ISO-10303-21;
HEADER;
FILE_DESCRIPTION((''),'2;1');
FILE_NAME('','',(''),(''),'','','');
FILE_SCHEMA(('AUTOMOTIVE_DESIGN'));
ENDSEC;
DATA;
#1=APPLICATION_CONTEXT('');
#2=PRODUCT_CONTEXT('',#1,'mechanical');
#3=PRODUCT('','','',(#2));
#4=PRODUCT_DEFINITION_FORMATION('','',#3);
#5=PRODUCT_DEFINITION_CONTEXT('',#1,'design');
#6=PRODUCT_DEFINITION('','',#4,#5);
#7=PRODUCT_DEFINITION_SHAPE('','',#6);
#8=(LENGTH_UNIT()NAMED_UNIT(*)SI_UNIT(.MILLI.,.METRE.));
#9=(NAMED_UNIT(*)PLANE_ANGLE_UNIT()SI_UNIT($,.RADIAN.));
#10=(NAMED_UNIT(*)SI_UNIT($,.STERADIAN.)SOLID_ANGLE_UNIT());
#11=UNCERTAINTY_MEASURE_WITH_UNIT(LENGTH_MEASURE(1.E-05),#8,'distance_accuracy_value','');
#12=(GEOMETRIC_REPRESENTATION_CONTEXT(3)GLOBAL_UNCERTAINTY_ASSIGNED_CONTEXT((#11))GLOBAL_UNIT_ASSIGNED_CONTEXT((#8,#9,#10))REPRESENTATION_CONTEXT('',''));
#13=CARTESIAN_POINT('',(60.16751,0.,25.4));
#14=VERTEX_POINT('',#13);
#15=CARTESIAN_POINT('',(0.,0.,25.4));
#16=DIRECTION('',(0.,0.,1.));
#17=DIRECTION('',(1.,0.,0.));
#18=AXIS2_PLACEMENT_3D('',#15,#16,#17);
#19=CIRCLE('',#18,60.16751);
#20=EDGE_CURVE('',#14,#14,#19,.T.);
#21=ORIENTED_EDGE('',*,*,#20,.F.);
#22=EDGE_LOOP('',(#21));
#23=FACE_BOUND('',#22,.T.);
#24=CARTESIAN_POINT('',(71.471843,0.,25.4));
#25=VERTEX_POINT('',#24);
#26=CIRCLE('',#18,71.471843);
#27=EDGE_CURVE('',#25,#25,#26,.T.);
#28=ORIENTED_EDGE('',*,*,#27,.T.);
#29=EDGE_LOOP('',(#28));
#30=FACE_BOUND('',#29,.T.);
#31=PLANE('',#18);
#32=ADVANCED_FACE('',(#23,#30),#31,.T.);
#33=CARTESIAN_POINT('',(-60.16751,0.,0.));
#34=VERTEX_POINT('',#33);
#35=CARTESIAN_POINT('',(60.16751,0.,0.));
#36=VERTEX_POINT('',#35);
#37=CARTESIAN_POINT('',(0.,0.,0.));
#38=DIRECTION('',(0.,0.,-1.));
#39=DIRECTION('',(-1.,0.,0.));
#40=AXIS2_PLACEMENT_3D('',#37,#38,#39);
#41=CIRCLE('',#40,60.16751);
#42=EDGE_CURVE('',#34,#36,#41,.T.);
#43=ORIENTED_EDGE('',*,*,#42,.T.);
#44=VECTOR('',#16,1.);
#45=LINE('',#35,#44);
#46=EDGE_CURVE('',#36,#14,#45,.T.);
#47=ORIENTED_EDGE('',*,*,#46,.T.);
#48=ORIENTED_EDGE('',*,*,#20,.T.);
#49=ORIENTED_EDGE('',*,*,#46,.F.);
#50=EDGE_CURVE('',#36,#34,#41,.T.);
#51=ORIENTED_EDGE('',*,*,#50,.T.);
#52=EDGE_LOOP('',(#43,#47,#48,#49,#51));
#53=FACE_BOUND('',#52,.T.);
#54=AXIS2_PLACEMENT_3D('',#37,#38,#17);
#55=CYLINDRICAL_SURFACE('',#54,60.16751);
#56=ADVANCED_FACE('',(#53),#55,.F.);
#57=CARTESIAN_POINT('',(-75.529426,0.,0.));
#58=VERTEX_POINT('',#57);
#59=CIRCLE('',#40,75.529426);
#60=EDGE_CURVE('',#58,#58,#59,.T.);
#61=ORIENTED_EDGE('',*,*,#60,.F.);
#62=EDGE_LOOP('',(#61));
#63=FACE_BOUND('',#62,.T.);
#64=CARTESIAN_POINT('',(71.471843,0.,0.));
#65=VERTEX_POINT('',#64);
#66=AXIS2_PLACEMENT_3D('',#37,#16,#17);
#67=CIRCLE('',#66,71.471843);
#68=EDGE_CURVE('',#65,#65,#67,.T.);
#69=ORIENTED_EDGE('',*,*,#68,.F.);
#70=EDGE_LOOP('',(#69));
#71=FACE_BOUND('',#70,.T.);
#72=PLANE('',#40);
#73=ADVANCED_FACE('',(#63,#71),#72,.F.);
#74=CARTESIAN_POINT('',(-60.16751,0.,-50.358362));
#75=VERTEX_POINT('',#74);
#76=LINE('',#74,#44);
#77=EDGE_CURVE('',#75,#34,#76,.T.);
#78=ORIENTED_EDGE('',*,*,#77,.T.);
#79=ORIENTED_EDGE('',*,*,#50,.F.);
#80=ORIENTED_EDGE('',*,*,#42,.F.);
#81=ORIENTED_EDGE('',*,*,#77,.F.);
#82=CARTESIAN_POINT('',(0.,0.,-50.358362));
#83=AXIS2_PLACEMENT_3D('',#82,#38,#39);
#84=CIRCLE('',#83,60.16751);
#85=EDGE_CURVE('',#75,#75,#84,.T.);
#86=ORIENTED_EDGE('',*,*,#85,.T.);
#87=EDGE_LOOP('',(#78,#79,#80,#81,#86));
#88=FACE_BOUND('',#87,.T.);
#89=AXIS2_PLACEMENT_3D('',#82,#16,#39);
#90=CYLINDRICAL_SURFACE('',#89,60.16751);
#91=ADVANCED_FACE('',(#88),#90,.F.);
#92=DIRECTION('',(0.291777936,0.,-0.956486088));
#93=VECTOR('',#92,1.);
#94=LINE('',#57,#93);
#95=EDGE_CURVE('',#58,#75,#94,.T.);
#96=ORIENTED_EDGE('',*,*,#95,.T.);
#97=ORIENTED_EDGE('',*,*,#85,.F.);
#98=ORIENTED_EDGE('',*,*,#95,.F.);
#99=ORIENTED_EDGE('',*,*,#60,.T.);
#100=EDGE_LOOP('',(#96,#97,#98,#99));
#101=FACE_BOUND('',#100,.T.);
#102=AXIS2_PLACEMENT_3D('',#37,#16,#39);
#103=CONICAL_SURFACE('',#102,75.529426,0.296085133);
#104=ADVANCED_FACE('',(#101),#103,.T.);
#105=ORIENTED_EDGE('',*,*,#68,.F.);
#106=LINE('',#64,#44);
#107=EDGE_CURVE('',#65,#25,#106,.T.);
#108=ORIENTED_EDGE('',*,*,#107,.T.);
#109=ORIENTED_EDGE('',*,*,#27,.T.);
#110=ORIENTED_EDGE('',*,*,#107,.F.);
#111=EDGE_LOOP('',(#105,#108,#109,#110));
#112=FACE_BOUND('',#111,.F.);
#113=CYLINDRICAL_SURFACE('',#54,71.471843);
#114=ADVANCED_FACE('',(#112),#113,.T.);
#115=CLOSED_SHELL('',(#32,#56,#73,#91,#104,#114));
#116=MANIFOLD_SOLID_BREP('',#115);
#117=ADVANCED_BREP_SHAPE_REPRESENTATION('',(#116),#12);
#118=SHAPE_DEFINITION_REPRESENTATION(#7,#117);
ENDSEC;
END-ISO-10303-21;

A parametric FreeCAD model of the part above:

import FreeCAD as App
import Part
import Sketcher

V = App.Vector
Q = App.Units.Quantity


def add_polygon(sketch, points):
    """Adds a closed chain of lines whose ends are joined by coincident constraints."""
    first, n = sketch.GeometryCount, len(points)
    for a, b in zip(points, points[1:] + points[:1]):
        sketch.addGeometry(Part.LineSegment(App.Vector(*a, 0), App.Vector(*b, 0)), False)
    for i in range(n):
        sketch.addConstraint(Sketcher.Constraint("Coincident", first + i, 2, first + (i + 1) % n, 1))

doc = App.newDocument("Part")
body = doc.addObject("PartDesign::Body", "Body")

# Sketch on XZ plane
sketch1 = body.newObject("Sketcher::SketchObject", "Sketch")
sketch1.AttachmentSupport = (doc.getObject("XZ_Plane"), [""])
sketch1.MapMode = "FlatFace"
add_polygon(sketch1, [(-60.16751, -50.358362), (-60.16751, 0), (-75.529426, 0)])  # lines 0-2
sketch1.addConstraint(Sketcher.Constraint("Vertical", 0))
sketch1.addConstraint(Sketcher.Constraint("Horizontal", 1))
sketch1.addConstraint(Sketcher.Constraint("PointOnObject", 0, 2, -1))
sketch1.addConstraint(Sketcher.Constraint("DistanceX", 1, 2, 1, 1, Q("0.6047998 in")))
sketch1.addConstraint(Sketcher.Constraint("Distance", 2, 52.649341))
sketch1.addConstraint(Sketcher.Constraint("DistanceX", 0, 2, -1, 1, 60.16751))
revolution = body.newObject("PartDesign::Revolution", "Revolution")
revolution.Profile = sketch1
revolution.ReferenceAxis = (sketch1, ["V_Axis"])
revolution.Angle = 360

# Sketch on XY plane
sketch2 = body.newObject("Sketcher::SketchObject", "Sketch001")
sketch2.AttachmentSupport = (doc.getObject("XY_Plane"), [""])
sketch2.MapMode = "FlatFace"
sketch2.addGeometry(Part.Circle(V(0, 0, 0), V(0, 0, 1), 71.471843), False)
sketch2.addGeometry(Part.Circle(V(0, 0, 0), V(0, 0, 1), 60.16751), False)
sketch2.addConstraint(Sketcher.Constraint("Coincident", 0, 3, -1, 1))
sketch2.addConstraint(Sketcher.Constraint("Coincident", 1, 3, -1, 1))
sketch2.addConstraint(Sketcher.Constraint("Diameter", 1, 120.33502))
sketch2.addConstraint(Sketcher.Constraint("Diameter", 0, 142.943686))
pad1 = body.newObject("PartDesign::Pad", "Pad")
pad1.Profile = sketch2
pad1.Length = Q("1 in")

doc.recompute()
